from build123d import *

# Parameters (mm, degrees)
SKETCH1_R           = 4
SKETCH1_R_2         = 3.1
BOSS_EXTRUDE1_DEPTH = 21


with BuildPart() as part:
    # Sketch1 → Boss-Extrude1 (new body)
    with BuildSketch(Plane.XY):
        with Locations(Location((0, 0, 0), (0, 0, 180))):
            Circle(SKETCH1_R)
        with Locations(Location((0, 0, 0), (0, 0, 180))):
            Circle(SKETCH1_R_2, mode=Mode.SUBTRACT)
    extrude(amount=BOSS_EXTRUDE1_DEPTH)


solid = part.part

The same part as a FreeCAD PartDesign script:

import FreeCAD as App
import Part
import Sketcher

V = App.Vector
Q = App.Units.Quantity

doc = App.newDocument("Part")
body = doc.addObject("PartDesign::Body", "Body")

sketch1 = body.newObject("Sketcher::SketchObject", "Sketch")
sketch1.AttachmentSupport = (doc.getObject("XY_Plane"), [""])
sketch1.MapMode = "FlatFace"
sketch1.addGeometry(Part.Circle(V(0, 0, 0), V(0, 0, 1), 4), False)
sketch1.addGeometry(Part.Circle(V(0, 0, 0), V(0, 0, 1), 3.1), False)
sketch1.addConstraint(Sketcher.Constraint("Coincident", 0, 3, -1, 1))
sketch1.addConstraint(Sketcher.Constraint("Coincident", 1, 3, -1, 1))
sketch1.addConstraint(Sketcher.Constraint("Diameter", 0, Q("8 mm")))
sketch1.addConstraint(Sketcher.Constraint("Diameter", 1, Q("6.2 mm")))
pad1 = body.newObject("PartDesign::Pad", "Pad")
pad1.Profile = sketch1
pad1.Length = 21

doc.recompute()
